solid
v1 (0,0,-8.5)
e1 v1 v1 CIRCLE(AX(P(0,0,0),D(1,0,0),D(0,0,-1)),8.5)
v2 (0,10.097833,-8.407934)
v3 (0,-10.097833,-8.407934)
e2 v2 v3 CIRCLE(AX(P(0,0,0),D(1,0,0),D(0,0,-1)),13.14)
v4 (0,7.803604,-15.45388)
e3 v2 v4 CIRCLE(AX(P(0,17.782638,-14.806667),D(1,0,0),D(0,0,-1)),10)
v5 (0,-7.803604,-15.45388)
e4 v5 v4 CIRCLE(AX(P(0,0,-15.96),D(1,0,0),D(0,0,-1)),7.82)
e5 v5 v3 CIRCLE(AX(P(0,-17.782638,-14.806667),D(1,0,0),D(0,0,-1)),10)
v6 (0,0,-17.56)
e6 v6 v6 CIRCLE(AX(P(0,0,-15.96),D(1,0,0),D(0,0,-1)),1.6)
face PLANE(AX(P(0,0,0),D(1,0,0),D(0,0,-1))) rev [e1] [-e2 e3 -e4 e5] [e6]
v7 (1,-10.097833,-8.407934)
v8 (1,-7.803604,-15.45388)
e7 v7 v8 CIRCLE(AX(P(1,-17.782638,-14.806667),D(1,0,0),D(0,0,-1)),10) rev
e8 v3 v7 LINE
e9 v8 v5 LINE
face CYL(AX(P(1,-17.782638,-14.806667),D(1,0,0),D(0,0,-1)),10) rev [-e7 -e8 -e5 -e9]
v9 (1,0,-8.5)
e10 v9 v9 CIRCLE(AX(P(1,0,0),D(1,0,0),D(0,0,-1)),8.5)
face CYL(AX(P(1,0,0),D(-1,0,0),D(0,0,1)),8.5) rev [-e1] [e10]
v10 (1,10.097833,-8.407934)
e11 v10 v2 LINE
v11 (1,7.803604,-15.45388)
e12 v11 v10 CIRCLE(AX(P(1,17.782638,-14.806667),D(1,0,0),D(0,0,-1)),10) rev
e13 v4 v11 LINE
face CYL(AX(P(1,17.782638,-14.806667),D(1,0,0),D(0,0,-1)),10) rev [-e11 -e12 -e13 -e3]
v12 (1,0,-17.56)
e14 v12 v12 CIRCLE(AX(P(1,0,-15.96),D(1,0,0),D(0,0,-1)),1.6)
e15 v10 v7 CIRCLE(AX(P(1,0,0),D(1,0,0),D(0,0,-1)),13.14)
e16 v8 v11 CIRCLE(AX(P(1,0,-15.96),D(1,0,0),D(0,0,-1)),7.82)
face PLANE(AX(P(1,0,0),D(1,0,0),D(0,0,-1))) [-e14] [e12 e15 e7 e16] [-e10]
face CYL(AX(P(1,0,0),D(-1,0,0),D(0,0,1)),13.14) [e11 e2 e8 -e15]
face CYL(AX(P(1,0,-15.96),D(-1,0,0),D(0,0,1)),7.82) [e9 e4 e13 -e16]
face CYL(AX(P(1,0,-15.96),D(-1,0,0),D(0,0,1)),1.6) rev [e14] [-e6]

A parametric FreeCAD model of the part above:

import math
import FreeCAD as App
import Part
import Sketcher

V = App.Vector


def edges_at(feature, points):
    """Names of the edges that pass closest to the given points."""
    edges = feature.Shape.Edges
    near = lambda p: min(range(len(edges)), key=lambda i: edges[i].distToShape(Part.Vertex(*p))[0])
    return sorted({f"Edge{near(p) + 1}" for p in points})

doc = App.newDocument("Part")
body = doc.addObject("PartDesign::Body", "Body")

# Sketch on YZ plane
sketch1 = body.newObject("Sketcher::SketchObject", "Sketch")
sketch1.AttachmentSupport = (doc.getObject("YZ_Plane"), [""])
sketch1.MapMode = "FlatFace"
sketch1.addGeometry([
    Part.ArcOfCircle(Part.Circle(V(0, -15.96, 0), V(0, 0, 1), 7.82), math.radians(144.988381), math.radians(395.011619)),
    Part.ArcOfCircle(Part.Circle(V(0, 0, 0), V(0, 0, 1), 13.14), math.radians(-60.828052), math.radians(240.828052)),
    Part.Circle(V(0, 0, 0), V(0, 0, 1), 8.5),
    Part.Circle(V(0, -15.96, 0), V(0, 0, 1), 1.6),
], False)
sketch1.addConstraint([
    Sketcher.Constraint("Coincident", 0, 1, 1, 2),
    Sketcher.Constraint("Coincident", 1, 1, 0, 2),
    Sketcher.Constraint("Coincident", 1, 3, -1, 1),
    Sketcher.Constraint("Coincident", 2, 3, -1, 1),
    Sketcher.Constraint("Coincident", 3, 3, 0, 3),
    Sketcher.Constraint("PointOnObject", 0, 3, -2),
    Sketcher.Constraint("Diameter", 2, 17.0),
    Sketcher.Constraint("Diameter", 3, 3.2),
    Sketcher.Constraint("Radius", 0, 7.82),
    Sketcher.Constraint("Radius", 1, 13.14),
    Sketcher.Constraint("DistanceY", 0, 3, -1, 1, 15.96),
])
pad1 = body.newObject("PartDesign::Pad", "Pad")
pad1.Profile = sketch1
pad1.Length = 1
doc.recompute()

fillet = body.newObject("PartDesign::Fillet", "Fillet")
fillet.Base = (pad1, edges_at(pad1, [(0.5, -6.405, -11.473), (0.5, 6.405, -11.473)]))
fillet.Radius = 10

doc.recompute()
